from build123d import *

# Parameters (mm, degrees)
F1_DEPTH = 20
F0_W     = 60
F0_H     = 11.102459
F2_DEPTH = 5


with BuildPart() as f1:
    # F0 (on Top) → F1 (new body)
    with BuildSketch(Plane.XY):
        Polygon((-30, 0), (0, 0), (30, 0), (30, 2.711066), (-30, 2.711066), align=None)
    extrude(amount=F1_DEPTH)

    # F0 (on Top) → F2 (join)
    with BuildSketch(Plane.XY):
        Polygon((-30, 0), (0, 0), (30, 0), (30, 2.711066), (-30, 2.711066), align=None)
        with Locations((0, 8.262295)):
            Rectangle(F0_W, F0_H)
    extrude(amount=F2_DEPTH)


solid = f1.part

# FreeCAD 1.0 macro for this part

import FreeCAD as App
import Part
import Sketcher
from FreeCAD import Vector
Q = App.Units.Quantity


def add_polygon(sketch, points):
    """Adds a closed chain of lines whose ends are joined by coincident constraints."""
    first, n = sketch.GeometryCount, len(points)
    for a, b in zip(points, points[1:] + points[:1]):
        sketch.addGeometry(Part.LineSegment(App.Vector(*a, 0), App.Vector(*b, 0)), False)
    for i in range(n):
        sketch.addConstraint(Sketcher.Constraint("Coincident", first + i, 2, first + (i + 1) % n, 1))

doc = App.newDocument("Part")
body = doc.addObject("PartDesign::Body", "Body")

sketch1 = doc.addObject("Sketcher::SketchObject", "Sketch")
body.addObject(sketch1)
sketch1.AttachmentSupport = (doc.XY_Plane, [""])
sketch1.MapMode = "FlatFace"
add_polygon(sketch1, [(-30, 0), (30, 0), (30, 2.7), (-30, 2.7)])
sketch1.addConstraint(Sketcher.Constraint("Horizontal", 0))
sketch1.addConstraint(Sketcher.Constraint("Vertical", 1))
sketch1.addConstraint(Sketcher.Constraint("Horizontal", 2))
sketch1.addConstraint(Sketcher.Constraint("Vertical", 3))
sketch1.addConstraint(Sketcher.Constraint("Symmetric", 0, 2, 3, 2, -1, 1))
sketch1.addConstraint(Sketcher.Constraint("DistanceX", 0, 1, 0, 2, Q("60 mm")))
sketch1.addConstraint(Sketcher.Constraint("DistanceY", 1, 1, 1, 2, Q("2.711066 mm")))
pad1 = doc.addObject("PartDesign::Pad", "Pad")
body.addObject(pad1)
pad1.Profile = sketch1
pad1.Length = 20

sketch2 = doc.addObject("Sketcher::SketchObject", "Sketch001")
body.addObject(sketch2)
sketch2.AttachmentSupport = (doc.XY_Plane, [""])
sketch2.MapMode = "FlatFace"
add_polygon(sketch2, [(-30, 0), (30, 0), (30, 14), (-30, 14)])
sketch2.addConstraint(Sketcher.Constraint("Horizontal", 0))
sketch2.addConstraint(Sketcher.Constraint("Vertical", 1))
sketch2.addConstraint(Sketcher.Constraint("Horizontal", 2))
sketch2.addConstraint(Sketcher.Constraint("Vertical", 3))
sketch2.addConstraint(Sketcher.Constraint("Symmetric", 0, 2, 3, 2, -1, 1))
sketch2.addConstraint(Sketcher.Constraint("DistanceX", 0, 1, 0, 2, Q("60 mm")))
sketch2.addConstraint(Sketcher.Constraint("DistanceY", 1, 1, 1, 2, Q("13.813524 mm")))
pad2 = doc.addObject("PartDesign::Pad", "Pad001")
body.addObject(pad2)
pad2.Profile = sketch2
pad2.Length = 5

doc.recompute()
